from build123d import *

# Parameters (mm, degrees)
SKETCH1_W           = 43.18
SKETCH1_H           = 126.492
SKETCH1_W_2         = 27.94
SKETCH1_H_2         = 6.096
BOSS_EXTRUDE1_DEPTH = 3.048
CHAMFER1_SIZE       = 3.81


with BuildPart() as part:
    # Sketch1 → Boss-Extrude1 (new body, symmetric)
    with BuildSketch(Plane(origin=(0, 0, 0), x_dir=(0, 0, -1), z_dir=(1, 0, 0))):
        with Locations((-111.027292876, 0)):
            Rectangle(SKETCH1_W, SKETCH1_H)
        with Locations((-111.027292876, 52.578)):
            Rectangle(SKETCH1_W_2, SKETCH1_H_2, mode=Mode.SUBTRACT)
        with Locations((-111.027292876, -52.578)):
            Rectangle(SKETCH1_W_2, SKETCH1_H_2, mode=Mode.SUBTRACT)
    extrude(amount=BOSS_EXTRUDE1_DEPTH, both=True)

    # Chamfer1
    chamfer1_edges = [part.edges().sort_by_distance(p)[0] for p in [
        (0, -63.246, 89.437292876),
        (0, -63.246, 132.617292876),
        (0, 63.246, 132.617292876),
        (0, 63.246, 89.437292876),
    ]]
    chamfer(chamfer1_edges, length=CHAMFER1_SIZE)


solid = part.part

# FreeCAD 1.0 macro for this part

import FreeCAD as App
import Part
import Sketcher
from FreeCAD import Vector
Q = App.Units.Quantity


def edges_at(feature, points):
    """Names of the edges that pass closest to the given points."""
    edges = feature.Shape.Edges
    near = lambda p: min(range(len(edges)), key=lambda i: edges[i].distToShape(Part.Vertex(*p))[0])
    return sorted({f"Edge{near(p) + 1}" for p in points})


def add_polygon(sketch, points):
    """Adds a closed chain of lines whose ends are joined by coincident constraints."""
    first, n = sketch.GeometryCount, len(points)
    for a, b in zip(points, points[1:] + points[:1]):
        sketch.addGeometry(Part.LineSegment(App.Vector(*a, 0), App.Vector(*b, 0)), False)
    for i in range(n):
        sketch.addConstraint(Sketcher.Constraint("Coincident", first + i, 2, first + (i + 1) % n, 1))

doc = App.newDocument("Part")
body = doc.addObject("PartDesign::Body", "Body")

# Sketch on YZ plane
sketch1 = body.newObject("Sketcher::SketchObject", "Sketch")
sketch1.AttachmentSupport = (doc.getObject("YZ_Plane"), [""])
sketch1.MapMode = "FlatFace"
add_polygon(sketch1, [(63, 133), (-63, 133), (-63, 89), (63, 89)])  # lines 0-3
add_polygon(sketch1, [(-56, 97), (-56, 125), (-50, 125), (-50, 97)])  # lines 4-7
add_polygon(sketch1, [(50, 97), (50, 125), (56, 125), (56, 97)])  # lines 8-11
sketch1.addConstraint(Sketcher.Constraint("Horizontal", 0))
sketch1.addConstraint(Sketcher.Constraint("Vertical", 1))
sketch1.addConstraint(Sketcher.Constraint("Horizontal", 2))
sketch1.addConstraint(Sketcher.Constraint("Vertical", 3))
sketch1.addConstraint(Sketcher.Constraint("Vertical", 4))
sketch1.addConstraint(Sketcher.Constraint("Horizontal", 5))
sketch1.addConstraint(Sketcher.Constraint("Vertical", 6))
sketch1.addConstraint(Sketcher.Constraint("Horizontal", 7))
sketch1.addConstraint(Sketcher.Constraint("Vertical", 8))
sketch1.addConstraint(Sketcher.Constraint("Horizontal", 9))
sketch1.addConstraint(Sketcher.Constraint("Vertical", 10))
sketch1.addConstraint(Sketcher.Constraint("Horizontal", 11))
sketch1.addConstraint(Sketcher.Constraint("Symmetric", 5, 2, 8, 2, -2))
sketch1.addConstraint(Sketcher.Constraint("Symmetric", 7, 2, 10, 2, -2))
sketch1.addConstraint(Sketcher.Constraint("DistanceY", 1, 2, 1, 1, Q("1.7 in")))
sketch1.addConstraint(Sketcher.Constraint("DistanceY", 4, 1, 4, 2, Q("1.1 in")))
sketch1.addConstraint(Sketcher.Constraint("DistanceX", 0, 2, 0, 1, Q("4.98 in")))
sketch1.addConstraint(Sketcher.Constraint("DistanceX", 5, 1, 5, 2, Q("0.24 in")))
sketch1.addConstraint(Sketcher.Constraint("DistanceX", 0, 2, 4, 2, Q("0.3 in")))
sketch1.addConstraint(Sketcher.Constraint("DistanceY", 4, 2, 0, 2, Q("0.3 in")))
sketch1.addConstraint(Sketcher.Constraint("DistanceX", 5, 2, 8, 2, Q("3.9 in")))
sketch1.addConstraint(Sketcher.Constraint("DistanceY", -1, 1, 0, 2, Q("132.617293 mm")))
pad1 = body.newObject("PartDesign::Pad", "Pad")
pad1.Profile = sketch1
pad1.Length = Q("0.24 in")
pad1.Midplane = True
doc.recompute()

chamfer = body.newObject("PartDesign::Chamfer", "Chamfer")
chamfer.Base = (pad1, edges_at(pad1, [
    (0, -63.246, 89.437),
    (0, -63.246, 132.617),
    (0, 63.246, 132.617),
    (0, 63.246, 89.437),
]))
chamfer.Size = Q("0.15 in")

doc.recompute()
